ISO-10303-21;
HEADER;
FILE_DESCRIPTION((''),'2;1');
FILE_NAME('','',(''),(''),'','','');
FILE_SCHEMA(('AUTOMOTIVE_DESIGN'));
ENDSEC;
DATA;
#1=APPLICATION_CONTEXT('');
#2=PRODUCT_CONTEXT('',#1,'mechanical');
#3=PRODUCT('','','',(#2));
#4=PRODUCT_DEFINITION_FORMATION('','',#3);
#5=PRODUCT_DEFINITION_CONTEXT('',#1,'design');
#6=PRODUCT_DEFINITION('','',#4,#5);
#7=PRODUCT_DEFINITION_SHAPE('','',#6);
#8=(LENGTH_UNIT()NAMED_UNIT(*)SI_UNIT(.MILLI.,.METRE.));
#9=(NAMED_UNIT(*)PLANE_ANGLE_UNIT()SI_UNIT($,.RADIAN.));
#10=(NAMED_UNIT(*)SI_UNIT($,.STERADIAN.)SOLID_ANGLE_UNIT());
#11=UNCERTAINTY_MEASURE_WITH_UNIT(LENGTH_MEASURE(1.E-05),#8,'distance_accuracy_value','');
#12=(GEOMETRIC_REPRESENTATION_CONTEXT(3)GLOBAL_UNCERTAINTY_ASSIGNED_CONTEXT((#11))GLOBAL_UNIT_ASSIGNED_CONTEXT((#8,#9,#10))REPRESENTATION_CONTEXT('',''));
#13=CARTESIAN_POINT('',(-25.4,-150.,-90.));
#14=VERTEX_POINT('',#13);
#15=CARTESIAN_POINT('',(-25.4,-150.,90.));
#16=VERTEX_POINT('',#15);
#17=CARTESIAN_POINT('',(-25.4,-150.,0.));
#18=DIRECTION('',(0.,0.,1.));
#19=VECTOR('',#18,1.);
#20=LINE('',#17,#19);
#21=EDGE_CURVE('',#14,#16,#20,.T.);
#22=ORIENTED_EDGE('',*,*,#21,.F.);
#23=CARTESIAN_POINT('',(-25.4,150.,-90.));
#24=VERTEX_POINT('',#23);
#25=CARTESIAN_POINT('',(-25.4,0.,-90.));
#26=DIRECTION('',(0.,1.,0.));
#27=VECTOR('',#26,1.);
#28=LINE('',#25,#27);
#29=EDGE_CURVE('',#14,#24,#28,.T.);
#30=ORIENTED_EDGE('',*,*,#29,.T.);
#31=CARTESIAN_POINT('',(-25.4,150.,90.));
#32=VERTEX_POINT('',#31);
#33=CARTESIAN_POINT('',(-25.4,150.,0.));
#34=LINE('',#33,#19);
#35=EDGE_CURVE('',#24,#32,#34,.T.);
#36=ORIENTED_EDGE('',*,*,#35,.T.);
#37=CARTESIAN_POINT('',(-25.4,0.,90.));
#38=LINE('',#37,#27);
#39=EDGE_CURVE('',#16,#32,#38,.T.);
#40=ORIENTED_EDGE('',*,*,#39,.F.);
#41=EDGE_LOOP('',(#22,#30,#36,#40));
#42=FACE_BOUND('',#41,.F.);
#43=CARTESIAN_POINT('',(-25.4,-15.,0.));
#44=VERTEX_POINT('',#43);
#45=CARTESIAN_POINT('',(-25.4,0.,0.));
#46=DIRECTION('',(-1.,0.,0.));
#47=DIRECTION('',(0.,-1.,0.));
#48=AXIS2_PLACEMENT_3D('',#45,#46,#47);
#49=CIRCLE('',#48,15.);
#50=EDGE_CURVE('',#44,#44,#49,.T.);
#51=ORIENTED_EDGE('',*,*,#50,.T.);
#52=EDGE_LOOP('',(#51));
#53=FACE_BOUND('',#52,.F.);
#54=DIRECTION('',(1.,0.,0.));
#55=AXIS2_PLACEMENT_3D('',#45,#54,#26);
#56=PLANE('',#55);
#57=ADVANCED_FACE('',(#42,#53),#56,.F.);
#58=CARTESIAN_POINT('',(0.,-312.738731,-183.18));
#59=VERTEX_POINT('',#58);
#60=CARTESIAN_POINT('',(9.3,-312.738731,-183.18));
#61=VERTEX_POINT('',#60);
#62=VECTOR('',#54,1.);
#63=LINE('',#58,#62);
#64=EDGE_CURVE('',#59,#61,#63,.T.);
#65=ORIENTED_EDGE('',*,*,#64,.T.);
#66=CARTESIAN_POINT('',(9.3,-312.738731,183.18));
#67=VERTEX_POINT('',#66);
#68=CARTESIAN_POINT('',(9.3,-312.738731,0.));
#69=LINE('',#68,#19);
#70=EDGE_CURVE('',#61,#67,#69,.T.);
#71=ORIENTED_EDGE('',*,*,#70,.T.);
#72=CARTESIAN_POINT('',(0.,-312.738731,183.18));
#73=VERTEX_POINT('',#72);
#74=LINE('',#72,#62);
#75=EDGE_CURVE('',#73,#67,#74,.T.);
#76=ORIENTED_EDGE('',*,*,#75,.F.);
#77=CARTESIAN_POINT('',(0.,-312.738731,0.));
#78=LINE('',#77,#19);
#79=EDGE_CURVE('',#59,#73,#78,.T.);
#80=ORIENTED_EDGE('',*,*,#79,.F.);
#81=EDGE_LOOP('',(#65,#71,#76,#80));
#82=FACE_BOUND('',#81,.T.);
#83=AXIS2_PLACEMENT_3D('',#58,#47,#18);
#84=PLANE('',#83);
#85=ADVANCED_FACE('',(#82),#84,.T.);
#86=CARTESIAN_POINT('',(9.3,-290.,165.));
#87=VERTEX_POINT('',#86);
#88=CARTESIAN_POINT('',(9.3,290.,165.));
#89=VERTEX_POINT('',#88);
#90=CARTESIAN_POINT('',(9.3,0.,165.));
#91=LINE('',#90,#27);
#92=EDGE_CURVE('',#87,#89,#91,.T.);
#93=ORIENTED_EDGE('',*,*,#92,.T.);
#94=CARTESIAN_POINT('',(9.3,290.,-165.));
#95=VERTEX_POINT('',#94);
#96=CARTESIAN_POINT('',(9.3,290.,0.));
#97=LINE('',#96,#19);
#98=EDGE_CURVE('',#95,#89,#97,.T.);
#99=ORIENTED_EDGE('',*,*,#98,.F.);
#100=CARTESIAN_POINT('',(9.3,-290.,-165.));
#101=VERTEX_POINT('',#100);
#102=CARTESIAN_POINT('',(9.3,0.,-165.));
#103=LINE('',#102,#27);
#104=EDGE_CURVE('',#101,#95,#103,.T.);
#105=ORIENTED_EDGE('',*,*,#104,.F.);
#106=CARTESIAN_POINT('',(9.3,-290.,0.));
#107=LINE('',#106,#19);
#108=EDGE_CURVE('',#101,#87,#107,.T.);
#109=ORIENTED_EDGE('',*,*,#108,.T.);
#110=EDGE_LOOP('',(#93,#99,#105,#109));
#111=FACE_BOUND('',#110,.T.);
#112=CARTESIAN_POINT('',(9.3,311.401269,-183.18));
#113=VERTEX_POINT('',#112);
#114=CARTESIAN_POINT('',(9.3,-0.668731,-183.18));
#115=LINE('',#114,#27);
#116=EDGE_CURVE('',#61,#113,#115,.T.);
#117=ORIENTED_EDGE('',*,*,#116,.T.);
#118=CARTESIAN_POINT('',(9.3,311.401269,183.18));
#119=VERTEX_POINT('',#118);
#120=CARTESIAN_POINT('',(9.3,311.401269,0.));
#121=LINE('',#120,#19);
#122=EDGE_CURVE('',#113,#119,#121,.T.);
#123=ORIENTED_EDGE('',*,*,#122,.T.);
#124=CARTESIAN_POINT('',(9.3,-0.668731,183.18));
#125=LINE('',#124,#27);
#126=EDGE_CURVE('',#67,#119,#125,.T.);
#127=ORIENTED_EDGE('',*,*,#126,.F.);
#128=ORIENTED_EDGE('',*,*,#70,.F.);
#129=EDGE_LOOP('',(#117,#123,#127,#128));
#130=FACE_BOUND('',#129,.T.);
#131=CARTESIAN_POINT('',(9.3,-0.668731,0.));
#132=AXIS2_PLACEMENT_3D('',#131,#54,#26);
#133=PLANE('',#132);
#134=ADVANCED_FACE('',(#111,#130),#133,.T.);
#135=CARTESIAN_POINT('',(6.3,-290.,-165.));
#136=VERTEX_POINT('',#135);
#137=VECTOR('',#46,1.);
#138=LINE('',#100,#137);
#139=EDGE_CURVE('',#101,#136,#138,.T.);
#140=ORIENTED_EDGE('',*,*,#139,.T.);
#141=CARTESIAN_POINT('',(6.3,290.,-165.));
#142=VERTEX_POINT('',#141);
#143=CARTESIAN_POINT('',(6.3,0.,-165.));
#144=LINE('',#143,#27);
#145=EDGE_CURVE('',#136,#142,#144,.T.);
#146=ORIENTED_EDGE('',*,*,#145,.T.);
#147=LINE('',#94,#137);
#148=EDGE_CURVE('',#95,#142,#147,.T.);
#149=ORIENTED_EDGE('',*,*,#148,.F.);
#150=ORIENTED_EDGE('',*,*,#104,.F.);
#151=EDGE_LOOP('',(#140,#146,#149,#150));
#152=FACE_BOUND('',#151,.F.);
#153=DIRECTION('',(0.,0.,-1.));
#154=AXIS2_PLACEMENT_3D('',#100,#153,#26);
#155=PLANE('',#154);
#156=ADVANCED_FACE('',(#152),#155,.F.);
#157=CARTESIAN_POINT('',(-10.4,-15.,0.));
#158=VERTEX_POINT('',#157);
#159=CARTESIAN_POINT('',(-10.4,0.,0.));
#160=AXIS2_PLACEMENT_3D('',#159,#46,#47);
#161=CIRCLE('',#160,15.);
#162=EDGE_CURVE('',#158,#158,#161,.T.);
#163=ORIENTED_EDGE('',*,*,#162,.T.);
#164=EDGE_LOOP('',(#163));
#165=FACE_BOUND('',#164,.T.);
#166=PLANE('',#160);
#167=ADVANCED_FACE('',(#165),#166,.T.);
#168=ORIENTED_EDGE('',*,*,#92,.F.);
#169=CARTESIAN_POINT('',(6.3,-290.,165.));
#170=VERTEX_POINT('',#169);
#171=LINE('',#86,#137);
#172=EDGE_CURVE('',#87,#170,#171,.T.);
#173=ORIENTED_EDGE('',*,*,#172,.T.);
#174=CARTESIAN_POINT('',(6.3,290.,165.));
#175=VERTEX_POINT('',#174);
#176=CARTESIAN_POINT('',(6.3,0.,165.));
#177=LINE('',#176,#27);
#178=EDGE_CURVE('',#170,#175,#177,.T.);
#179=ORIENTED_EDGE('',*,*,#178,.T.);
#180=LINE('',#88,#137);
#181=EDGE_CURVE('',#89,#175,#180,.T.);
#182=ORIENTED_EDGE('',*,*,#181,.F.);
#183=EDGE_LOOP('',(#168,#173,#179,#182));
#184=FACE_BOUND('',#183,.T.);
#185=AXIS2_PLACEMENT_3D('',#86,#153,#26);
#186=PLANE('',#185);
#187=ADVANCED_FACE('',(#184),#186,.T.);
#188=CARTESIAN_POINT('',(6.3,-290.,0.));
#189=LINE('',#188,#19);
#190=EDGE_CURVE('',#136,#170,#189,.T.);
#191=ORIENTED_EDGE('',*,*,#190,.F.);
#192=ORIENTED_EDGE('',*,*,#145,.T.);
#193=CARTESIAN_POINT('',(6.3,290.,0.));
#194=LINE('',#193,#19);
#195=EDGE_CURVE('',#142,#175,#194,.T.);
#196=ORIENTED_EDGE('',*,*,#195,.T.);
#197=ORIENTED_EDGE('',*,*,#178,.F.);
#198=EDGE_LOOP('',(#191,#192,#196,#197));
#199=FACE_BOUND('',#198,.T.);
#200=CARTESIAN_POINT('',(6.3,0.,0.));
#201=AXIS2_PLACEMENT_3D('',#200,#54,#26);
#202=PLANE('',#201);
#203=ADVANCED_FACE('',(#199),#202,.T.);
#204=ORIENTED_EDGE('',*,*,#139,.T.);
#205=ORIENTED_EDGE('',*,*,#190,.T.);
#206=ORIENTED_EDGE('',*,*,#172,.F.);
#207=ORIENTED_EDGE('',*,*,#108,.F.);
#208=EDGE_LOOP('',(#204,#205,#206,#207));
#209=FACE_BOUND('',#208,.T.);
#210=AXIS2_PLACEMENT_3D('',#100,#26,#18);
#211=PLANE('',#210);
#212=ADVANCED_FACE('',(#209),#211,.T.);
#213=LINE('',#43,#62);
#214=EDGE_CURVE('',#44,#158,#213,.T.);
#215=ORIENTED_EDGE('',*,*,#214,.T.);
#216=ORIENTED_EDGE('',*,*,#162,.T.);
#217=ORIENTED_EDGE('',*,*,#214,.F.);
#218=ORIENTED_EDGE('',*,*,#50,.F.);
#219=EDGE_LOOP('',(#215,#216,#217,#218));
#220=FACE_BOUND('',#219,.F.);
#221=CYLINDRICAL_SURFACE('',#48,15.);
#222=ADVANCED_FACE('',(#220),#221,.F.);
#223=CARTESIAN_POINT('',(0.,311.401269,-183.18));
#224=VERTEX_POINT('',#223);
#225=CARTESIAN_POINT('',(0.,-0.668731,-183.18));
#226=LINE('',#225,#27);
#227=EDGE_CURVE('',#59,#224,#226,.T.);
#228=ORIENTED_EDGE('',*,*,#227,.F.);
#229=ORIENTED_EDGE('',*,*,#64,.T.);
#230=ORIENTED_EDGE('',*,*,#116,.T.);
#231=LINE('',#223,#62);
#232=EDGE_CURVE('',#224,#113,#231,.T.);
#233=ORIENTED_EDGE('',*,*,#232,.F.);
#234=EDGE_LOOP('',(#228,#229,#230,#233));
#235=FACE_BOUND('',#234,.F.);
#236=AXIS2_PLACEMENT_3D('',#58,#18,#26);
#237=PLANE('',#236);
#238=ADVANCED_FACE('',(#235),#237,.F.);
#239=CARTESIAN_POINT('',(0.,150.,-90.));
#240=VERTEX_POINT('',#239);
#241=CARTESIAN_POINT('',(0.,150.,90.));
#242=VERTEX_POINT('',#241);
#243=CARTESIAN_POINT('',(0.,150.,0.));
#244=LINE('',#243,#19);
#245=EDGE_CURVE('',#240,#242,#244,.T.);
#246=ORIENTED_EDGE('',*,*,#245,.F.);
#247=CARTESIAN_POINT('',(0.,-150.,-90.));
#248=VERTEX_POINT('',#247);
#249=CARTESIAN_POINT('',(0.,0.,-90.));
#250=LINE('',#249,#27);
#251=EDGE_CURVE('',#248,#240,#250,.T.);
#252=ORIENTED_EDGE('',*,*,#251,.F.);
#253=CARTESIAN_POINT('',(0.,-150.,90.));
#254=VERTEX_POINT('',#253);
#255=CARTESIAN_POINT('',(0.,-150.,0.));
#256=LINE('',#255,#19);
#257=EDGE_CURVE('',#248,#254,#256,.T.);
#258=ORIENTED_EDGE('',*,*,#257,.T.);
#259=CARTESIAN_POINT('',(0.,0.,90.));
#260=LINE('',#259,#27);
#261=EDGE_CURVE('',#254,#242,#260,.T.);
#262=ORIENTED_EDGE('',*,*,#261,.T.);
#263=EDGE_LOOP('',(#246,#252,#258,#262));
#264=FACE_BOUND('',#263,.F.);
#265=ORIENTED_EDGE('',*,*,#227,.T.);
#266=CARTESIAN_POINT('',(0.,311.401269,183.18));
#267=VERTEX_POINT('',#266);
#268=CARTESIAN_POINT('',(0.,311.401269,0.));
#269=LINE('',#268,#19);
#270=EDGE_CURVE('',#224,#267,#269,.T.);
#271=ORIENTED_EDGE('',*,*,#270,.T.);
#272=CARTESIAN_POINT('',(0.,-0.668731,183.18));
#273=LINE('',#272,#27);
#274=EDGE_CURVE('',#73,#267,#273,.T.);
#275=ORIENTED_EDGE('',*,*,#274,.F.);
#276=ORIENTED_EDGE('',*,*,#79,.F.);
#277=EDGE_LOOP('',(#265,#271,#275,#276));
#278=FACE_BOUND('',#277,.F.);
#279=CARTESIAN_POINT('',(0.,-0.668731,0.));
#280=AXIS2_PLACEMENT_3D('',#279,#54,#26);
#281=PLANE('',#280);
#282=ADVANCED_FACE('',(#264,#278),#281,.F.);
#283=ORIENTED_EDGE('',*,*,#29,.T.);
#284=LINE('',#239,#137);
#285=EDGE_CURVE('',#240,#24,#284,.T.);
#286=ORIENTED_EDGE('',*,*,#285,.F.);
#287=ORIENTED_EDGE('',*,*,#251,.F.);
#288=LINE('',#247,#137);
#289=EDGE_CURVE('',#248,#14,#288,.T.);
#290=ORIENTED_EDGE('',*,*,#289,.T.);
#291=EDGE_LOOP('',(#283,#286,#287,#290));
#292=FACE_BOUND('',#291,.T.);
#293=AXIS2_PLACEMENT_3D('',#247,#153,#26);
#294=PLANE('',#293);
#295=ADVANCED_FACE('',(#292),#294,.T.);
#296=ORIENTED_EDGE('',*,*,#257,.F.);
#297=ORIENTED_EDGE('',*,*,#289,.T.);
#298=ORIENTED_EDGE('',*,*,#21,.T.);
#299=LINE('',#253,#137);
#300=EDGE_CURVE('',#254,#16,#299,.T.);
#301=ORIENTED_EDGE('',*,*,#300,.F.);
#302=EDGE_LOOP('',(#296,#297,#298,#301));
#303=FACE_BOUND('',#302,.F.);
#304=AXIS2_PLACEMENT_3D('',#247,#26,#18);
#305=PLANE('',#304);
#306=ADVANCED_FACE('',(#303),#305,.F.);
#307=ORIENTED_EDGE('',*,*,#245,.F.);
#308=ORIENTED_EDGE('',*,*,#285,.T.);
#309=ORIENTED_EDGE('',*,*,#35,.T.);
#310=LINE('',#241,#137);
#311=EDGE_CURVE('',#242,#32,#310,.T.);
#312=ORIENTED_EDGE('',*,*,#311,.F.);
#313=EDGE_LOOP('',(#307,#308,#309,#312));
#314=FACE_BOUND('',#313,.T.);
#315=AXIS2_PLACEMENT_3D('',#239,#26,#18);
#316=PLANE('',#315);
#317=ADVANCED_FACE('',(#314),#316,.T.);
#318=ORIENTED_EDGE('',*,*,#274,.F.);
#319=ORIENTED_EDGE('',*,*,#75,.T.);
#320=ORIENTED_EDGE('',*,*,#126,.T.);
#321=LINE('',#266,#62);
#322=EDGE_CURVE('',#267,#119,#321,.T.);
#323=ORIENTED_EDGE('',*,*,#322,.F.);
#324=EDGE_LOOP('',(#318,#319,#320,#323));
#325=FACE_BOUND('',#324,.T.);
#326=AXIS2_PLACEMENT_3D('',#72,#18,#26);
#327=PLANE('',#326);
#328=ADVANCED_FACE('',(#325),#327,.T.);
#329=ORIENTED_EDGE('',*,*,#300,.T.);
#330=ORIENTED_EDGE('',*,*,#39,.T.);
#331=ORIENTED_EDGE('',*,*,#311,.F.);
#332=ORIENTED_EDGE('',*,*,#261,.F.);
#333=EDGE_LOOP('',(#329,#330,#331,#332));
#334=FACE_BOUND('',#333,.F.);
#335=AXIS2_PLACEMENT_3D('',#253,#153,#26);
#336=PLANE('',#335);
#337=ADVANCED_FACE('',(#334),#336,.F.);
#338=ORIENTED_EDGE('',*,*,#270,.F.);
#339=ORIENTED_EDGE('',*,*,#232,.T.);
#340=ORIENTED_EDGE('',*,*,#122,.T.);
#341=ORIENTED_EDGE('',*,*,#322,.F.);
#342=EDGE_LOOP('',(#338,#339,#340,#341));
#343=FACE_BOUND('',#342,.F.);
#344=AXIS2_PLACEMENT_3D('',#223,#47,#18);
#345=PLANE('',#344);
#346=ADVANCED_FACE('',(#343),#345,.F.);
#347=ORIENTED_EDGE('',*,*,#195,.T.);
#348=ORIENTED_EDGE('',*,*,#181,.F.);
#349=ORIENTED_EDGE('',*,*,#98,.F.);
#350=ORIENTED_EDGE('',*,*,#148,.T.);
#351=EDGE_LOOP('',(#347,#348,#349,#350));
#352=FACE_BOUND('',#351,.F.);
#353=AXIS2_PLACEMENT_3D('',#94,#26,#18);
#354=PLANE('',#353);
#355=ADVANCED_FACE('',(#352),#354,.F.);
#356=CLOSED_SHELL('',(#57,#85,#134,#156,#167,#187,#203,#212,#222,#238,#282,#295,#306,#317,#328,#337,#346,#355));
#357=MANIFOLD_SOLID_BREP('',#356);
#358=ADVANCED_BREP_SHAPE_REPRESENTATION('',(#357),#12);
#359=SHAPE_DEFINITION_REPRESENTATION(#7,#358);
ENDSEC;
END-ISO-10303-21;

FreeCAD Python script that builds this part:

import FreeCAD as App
import Part
import Sketcher
from FreeCAD import Vector
Q = App.Units.Quantity


def add_polygon(sketch, points):
    """Adds a closed chain of lines whose ends are joined by coincident constraints."""
    first, n = sketch.GeometryCount, len(points)
    for a, b in zip(points, points[1:] + points[:1]):
        sketch.addGeometry(Part.LineSegment(App.Vector(*a, 0), App.Vector(*b, 0)), False)
    for i in range(n):
        sketch.addConstraint(Sketcher.Constraint("Coincident", first + i, 2, first + (i + 1) % n, 1))

doc = App.newDocument("Part")
body = doc.addObject("PartDesign::Body", "Body")

# Sketch on YZ plane
sketch1 = body.newObject("Sketcher::SketchObject", "Sketch")
sketch1.AttachmentSupport = (doc.getObject("YZ_Plane"), [""])
sketch1.MapMode = "FlatFace"
add_polygon(sketch1, [(-312.738731, 183.18), (-312.738731, -183.18), (311.401269, -183.18), (311.401269, 183.18)])  # lines 0-3
sketch1.addConstraint(Sketcher.Constraint("Vertical", 0))
sketch1.addConstraint(Sketcher.Constraint("Horizontal", 1))
sketch1.addConstraint(Sketcher.Constraint("Vertical", 2))
sketch1.addConstraint(Sketcher.Constraint("Horizontal", 3))
sketch1.addConstraint(Sketcher.Constraint("DistanceX", 1, 1, 1, 2, Q("624.14 mm")))
sketch1.addConstraint(Sketcher.Constraint("DistanceY", 0, 2, 0, 1, Q("366.36 mm")))
sketch1.addConstraint(Sketcher.Constraint("DistanceY", 0, 2, -1, 1, Q("183.18 mm")))
sketch1.addConstraint(Sketcher.Constraint("DistanceX", 0, 2, -1, 1, Q("312.738731 mm")))
pad1 = body.newObject("PartDesign::Pad", "Pad")
pad1.Profile = sketch1
pad1.Length = 9.3

# Sketch on YZ plane
sketch2 = body.newObject("Sketcher::SketchObject", "Sketch001")
sketch2.AttachmentSupport = (doc.getObject("YZ_Plane"), [""])
sketch2.MapMode = "FlatFace"
sketch2.AttachmentOffset = App.Placement(Vector(0, 0, 9.3), App.Rotation())
add_polygon(sketch2, [(-290, 165), (-290, -165), (290, -165), (290, 165)])  # lines 0-3
sketch2.addConstraint(Sketcher.Constraint("Vertical", 0))
sketch2.addConstraint(Sketcher.Constraint("Horizontal", 1))
sketch2.addConstraint(Sketcher.Constraint("Vertical", 2))
sketch2.addConstraint(Sketcher.Constraint("Horizontal", 3))
sketch2.addConstraint(Sketcher.Constraint("Symmetric", 0, 2, 2, 2, -1, 1))
sketch2.addConstraint(Sketcher.Constraint("DistanceX", 1, 1, 1, 2, Q("580 mm")))
sketch2.addConstraint(Sketcher.Constraint("DistanceY", 0, 2, 0, 1, Q("330 mm")))
pocket1 = body.newObject("PartDesign::Pocket", "Pocket")
pocket1.Profile = sketch2
pocket1.Length = 3

# Sketch on YZ plane
sketch3 = body.newObject("Sketcher::SketchObject", "Sketch002")
sketch3.AttachmentSupport = (doc.getObject("YZ_Plane"), [""])
sketch3.MapMode = "FlatFace"
add_polygon(sketch3, [(-150, 90), (-150, -90), (150, -90), (150, 90)])  # lines 0-3
sketch3.addConstraint(Sketcher.Constraint("Vertical", 0))
sketch3.addConstraint(Sketcher.Constraint("Horizontal", 1))
sketch3.addConstraint(Sketcher.Constraint("Vertical", 2))
sketch3.addConstraint(Sketcher.Constraint("Horizontal", 3))
sketch3.addConstraint(Sketcher.Constraint("Symmetric", 0, 2, 2, 2, -1, 1))
sketch3.addConstraint(Sketcher.Constraint("DistanceX", 1, 1, 1, 2, Q("300 mm")))
sketch3.addConstraint(Sketcher.Constraint("DistanceY", 0, 2, 0, 1, Q("180 mm")))
pad2 = body.newObject("PartDesign::Pad", "Pad001")
pad2.Profile = sketch3
pad2.Length = 25.4
pad2.Reversed = True

# Sketch on YZ plane
sketch4 = body.newObject("Sketcher::SketchObject", "Sketch003")
sketch4.AttachmentSupport = (doc.getObject("YZ_Plane"), [""])
sketch4.MapMode = "FlatFace"
sketch4.AttachmentOffset = App.Placement(Vector(0, 0, -25.4), App.Rotation())
sketch4.addGeometry(Part.Circle(Vector(0, 0, 0), Vector(0, 0, 1), 15), False)
sketch4.addConstraint(Sketcher.Constraint("Coincident", 0, 3, -1, 1))
sketch4.addConstraint(Sketcher.Constraint("Diameter", 0, Q("30 mm")))
pocket2 = body.newObject("PartDesign::Pocket", "Pocket001")
pocket2.Profile = sketch4
pocket2.Length = 15
pocket2.Reversed = True

doc.recompute()
